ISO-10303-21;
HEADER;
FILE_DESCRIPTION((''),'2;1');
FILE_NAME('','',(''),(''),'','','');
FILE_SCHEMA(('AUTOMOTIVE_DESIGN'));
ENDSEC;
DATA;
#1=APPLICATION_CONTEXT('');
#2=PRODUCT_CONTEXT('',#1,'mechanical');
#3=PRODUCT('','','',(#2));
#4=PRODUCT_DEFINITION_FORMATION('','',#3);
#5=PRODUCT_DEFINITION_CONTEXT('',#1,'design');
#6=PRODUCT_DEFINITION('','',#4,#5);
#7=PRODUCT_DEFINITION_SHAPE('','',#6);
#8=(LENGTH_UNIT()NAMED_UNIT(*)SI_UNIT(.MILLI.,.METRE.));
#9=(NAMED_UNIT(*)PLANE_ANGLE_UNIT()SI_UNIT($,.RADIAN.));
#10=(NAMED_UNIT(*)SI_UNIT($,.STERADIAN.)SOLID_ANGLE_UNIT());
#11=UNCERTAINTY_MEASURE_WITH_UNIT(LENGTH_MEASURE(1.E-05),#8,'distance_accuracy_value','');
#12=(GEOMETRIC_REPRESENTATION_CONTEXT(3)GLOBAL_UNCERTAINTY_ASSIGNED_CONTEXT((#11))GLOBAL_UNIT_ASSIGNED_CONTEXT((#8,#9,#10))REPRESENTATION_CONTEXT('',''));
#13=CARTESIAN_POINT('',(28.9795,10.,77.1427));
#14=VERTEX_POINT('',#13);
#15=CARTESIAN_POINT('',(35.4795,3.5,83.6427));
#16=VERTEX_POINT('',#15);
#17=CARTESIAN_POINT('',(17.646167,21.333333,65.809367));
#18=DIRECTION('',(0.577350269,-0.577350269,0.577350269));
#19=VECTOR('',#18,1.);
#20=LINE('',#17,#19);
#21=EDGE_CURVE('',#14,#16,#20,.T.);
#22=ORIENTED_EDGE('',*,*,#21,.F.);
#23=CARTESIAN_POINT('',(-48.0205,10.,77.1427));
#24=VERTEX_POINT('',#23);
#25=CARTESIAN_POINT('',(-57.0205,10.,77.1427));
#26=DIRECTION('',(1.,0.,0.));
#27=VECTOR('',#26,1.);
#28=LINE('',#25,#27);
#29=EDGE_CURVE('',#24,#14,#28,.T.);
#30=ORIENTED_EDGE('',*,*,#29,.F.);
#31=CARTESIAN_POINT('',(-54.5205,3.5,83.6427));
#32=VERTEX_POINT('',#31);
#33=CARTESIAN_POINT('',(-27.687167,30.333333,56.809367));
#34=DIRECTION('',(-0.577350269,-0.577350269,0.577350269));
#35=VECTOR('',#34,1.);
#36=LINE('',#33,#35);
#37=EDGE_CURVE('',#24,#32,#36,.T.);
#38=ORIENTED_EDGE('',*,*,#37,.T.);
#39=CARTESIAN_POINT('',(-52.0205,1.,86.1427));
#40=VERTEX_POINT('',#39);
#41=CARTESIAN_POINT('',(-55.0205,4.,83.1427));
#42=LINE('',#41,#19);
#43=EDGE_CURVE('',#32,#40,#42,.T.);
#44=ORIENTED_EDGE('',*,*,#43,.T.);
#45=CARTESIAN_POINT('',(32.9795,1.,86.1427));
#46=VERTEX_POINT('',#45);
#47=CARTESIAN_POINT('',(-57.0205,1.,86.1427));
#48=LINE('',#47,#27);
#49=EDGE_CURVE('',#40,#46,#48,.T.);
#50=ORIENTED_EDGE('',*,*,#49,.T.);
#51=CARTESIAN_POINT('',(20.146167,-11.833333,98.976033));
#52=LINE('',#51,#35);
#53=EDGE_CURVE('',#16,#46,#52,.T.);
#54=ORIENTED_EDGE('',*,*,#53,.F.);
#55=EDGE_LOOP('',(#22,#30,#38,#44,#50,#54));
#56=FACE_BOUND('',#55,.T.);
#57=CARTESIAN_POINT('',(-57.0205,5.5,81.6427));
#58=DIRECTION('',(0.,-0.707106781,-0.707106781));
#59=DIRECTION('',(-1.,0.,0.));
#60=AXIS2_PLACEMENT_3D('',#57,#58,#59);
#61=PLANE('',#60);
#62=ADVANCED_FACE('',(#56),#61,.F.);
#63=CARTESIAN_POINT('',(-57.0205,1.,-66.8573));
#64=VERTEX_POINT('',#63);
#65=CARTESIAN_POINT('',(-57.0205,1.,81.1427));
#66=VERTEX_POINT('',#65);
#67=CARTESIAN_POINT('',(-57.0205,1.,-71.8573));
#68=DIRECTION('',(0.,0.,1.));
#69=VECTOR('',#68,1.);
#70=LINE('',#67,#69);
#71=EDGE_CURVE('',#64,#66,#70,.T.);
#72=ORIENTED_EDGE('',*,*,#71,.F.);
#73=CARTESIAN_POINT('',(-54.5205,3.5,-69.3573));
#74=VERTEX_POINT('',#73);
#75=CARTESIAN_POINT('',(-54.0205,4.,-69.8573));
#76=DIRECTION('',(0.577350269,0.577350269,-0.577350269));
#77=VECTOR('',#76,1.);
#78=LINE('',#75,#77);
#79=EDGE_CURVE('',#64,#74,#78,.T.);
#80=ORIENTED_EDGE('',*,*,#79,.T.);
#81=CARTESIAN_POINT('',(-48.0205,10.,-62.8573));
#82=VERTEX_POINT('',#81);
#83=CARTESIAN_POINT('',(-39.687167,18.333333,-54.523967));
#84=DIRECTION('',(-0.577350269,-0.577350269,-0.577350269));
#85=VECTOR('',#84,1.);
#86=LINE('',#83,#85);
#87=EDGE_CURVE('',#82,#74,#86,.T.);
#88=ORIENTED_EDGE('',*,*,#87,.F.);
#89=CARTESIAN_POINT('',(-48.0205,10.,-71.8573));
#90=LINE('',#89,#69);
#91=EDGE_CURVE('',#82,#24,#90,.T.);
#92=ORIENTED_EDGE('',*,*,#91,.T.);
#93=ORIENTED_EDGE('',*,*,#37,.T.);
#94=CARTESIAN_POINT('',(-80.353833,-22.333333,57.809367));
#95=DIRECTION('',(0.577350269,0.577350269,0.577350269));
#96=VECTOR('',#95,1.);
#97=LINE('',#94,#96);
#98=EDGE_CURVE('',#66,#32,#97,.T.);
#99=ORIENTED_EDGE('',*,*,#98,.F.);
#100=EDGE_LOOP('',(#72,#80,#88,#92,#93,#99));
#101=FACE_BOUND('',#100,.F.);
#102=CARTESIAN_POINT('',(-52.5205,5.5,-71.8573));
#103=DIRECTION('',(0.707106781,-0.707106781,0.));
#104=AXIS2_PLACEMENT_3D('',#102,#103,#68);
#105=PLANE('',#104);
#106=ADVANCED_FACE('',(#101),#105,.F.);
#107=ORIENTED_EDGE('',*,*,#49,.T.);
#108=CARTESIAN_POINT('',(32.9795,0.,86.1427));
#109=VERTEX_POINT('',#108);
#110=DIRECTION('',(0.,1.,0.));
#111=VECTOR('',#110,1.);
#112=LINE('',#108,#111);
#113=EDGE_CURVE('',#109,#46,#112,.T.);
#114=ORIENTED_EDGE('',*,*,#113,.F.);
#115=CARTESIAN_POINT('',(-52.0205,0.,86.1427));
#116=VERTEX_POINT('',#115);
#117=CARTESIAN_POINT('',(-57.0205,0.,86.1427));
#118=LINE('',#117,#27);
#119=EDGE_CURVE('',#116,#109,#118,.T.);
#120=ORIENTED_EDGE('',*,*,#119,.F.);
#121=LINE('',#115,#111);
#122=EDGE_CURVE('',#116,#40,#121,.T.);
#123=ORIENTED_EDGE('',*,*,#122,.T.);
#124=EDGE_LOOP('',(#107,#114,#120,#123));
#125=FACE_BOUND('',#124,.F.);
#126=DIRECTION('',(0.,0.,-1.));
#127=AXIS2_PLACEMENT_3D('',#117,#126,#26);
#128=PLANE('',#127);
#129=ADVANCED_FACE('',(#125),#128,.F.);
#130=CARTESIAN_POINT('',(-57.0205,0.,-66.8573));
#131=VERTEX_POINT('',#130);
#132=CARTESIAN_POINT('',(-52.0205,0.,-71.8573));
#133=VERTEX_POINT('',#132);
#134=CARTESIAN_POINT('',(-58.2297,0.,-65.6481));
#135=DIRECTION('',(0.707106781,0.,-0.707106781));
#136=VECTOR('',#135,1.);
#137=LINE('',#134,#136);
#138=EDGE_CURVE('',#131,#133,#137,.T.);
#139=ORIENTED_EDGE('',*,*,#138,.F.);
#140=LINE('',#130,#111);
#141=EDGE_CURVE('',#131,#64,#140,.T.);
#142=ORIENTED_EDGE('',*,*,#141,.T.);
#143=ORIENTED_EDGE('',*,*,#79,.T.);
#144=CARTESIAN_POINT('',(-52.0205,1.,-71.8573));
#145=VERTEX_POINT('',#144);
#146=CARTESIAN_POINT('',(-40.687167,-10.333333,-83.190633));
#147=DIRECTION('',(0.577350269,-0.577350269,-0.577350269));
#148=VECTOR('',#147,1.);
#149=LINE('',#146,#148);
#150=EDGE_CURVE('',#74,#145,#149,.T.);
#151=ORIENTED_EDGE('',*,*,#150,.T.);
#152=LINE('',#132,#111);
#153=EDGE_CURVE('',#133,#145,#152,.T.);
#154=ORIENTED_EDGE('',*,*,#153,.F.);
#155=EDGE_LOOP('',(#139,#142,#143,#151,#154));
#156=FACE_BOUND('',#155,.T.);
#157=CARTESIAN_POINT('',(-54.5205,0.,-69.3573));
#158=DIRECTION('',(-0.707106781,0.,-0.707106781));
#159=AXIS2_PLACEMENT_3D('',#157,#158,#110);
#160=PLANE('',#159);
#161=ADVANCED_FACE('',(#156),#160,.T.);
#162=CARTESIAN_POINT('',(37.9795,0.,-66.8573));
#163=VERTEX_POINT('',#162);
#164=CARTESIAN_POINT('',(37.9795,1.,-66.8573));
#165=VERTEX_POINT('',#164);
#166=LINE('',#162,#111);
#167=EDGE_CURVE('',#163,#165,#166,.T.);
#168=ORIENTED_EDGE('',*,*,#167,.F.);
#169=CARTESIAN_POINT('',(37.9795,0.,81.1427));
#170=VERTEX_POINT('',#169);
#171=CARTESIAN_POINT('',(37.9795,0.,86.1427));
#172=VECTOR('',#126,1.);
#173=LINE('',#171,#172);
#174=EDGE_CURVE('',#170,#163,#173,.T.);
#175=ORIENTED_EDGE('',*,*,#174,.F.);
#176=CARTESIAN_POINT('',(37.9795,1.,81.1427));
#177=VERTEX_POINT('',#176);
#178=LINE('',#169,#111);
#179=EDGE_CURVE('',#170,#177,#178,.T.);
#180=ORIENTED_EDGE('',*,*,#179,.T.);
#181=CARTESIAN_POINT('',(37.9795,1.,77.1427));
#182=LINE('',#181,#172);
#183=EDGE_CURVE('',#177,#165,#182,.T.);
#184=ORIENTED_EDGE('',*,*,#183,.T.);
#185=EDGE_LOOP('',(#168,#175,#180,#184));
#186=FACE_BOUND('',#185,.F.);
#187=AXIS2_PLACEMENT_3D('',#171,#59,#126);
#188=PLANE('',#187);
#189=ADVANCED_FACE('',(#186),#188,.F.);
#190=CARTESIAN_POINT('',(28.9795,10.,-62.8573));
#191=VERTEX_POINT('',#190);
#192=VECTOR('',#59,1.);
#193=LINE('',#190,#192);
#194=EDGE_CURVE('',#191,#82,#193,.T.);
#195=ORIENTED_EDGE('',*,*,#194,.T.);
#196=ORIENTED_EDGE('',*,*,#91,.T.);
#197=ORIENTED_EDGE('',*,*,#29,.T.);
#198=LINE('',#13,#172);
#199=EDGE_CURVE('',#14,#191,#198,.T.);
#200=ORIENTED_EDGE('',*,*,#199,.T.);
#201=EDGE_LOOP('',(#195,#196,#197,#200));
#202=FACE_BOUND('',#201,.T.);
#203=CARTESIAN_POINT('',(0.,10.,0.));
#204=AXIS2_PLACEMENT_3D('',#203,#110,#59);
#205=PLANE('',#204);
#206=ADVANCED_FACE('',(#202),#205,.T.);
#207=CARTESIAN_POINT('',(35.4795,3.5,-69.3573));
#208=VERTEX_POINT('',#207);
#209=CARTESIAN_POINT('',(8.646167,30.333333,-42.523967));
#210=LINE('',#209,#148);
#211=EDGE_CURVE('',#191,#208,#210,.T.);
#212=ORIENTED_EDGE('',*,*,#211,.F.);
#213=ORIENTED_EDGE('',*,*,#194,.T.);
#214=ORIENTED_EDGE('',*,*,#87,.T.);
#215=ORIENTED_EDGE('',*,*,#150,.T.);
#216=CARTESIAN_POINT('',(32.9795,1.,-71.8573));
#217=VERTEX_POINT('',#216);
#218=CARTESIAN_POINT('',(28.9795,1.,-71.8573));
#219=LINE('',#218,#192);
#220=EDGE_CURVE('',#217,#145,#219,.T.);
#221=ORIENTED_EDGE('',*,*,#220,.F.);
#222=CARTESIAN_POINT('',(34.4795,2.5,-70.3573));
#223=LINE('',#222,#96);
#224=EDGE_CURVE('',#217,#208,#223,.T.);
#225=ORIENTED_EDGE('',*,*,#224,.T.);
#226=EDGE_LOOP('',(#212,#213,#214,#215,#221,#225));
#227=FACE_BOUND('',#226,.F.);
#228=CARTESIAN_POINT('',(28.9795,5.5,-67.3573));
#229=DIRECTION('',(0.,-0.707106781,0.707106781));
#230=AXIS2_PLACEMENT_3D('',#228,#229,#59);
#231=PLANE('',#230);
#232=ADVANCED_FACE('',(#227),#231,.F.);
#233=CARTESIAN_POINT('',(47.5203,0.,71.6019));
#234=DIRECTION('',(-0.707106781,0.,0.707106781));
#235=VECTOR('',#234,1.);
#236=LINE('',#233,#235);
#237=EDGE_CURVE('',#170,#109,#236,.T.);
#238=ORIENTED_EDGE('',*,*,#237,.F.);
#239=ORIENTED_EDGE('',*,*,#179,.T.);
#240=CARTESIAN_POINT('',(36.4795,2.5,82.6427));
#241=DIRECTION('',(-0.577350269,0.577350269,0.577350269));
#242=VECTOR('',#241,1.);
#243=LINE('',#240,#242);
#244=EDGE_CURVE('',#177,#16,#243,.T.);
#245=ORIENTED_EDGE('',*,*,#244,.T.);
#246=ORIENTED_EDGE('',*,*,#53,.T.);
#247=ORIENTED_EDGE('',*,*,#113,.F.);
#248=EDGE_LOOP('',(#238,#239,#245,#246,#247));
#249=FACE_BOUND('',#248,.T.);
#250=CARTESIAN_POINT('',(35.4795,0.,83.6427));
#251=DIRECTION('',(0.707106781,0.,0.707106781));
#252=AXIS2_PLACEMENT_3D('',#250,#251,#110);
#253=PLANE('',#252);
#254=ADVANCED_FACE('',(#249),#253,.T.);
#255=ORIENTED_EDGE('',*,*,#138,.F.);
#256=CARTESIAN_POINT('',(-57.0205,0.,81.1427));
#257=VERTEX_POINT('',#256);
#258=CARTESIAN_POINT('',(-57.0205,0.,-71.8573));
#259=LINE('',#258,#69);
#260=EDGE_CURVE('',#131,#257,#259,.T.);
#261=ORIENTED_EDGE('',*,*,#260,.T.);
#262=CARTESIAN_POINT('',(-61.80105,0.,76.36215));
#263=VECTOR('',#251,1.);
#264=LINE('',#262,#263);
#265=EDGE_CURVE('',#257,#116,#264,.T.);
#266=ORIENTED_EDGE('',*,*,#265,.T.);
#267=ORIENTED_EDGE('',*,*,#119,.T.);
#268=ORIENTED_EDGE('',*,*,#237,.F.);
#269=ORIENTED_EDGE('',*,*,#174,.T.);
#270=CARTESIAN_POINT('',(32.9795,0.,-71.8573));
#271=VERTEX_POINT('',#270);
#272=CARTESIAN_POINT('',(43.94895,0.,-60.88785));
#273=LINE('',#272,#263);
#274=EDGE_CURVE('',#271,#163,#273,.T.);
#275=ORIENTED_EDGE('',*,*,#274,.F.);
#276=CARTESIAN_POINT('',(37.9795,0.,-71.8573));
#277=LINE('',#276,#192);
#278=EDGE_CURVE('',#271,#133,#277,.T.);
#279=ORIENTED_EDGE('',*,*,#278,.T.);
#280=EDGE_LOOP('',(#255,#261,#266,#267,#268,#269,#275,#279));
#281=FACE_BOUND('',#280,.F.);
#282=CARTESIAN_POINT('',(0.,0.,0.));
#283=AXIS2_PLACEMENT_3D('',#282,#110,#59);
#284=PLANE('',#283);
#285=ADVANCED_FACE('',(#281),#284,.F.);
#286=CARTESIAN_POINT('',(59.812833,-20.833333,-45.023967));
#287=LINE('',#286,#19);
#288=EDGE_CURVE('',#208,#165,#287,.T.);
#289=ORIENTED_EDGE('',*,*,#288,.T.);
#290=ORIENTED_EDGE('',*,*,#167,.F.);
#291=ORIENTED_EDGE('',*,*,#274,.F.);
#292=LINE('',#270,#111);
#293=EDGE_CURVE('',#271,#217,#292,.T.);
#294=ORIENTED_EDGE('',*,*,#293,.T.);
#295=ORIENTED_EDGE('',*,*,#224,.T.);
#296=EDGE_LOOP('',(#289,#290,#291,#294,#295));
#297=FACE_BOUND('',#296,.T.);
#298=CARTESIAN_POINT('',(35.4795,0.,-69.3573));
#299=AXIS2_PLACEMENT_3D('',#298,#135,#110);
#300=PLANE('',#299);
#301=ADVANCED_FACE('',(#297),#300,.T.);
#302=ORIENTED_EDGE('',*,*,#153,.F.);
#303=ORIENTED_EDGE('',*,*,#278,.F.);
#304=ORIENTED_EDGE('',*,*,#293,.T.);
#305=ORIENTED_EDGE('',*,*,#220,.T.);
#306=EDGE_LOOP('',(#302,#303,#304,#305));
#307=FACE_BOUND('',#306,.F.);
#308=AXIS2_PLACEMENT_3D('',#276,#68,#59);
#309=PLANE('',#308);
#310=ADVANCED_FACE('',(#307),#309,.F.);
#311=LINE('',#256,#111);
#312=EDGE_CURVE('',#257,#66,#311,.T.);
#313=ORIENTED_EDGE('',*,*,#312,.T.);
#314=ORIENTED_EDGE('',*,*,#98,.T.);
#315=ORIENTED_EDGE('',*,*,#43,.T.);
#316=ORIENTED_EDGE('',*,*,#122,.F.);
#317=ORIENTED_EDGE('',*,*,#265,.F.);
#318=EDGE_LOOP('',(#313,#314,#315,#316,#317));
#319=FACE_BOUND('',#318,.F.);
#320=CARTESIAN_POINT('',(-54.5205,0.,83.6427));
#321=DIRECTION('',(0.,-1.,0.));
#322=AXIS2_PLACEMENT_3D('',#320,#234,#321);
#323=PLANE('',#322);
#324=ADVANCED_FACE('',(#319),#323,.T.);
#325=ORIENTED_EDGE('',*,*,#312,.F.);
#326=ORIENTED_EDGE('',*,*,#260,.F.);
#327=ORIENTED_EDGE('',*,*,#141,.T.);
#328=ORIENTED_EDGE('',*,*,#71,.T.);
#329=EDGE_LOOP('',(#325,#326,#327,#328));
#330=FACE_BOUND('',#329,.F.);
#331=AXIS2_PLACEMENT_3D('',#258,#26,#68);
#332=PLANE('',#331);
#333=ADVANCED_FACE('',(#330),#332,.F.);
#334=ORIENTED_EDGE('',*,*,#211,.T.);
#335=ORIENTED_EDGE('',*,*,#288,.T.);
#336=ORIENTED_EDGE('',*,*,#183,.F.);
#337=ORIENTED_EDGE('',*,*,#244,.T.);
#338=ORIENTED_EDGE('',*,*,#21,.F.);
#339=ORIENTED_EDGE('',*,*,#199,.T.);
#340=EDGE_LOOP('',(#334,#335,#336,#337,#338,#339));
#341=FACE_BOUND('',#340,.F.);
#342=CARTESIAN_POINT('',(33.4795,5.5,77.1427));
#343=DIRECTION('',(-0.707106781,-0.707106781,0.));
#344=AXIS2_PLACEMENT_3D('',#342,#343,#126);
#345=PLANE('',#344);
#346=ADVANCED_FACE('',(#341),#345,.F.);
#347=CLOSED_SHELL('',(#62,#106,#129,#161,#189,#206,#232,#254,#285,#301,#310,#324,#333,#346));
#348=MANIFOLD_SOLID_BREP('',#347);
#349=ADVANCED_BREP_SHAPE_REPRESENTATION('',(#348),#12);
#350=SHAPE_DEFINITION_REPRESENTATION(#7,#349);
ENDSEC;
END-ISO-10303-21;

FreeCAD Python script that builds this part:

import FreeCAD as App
import Part
import Sketcher
Q = App.Units.Quantity


def edges_at(feature, points):
    """Names of the edges that pass closest to the given points."""
    edges = feature.Shape.Edges
    near = lambda p: min(range(len(edges)), key=lambda i: edges[i].distToShape(Part.Vertex(*p))[0])
    return sorted({f"Edge{near(p) + 1}" for p in points})

doc = App.newDocument("Part")
body = doc.addObject("PartDesign::Body", "Body")

sketch1 = body.newObject("Sketcher::SketchObject", "Sketch")
sketch1.AttachmentSupport = (doc.getObject("XZ_Plane"), [""])
sketch1.MapMode = "FlatFace"
sketch1.addGeometry([
    Part.LineSegment(App.Vector(-57, -72, 0), App.Vector(-57, 86, 0)),
    Part.LineSegment(App.Vector(-57, 86, 0), App.Vector(38, 86, 0)),
    Part.LineSegment(App.Vector(38, 86, 0), App.Vector(38, -72, 0)),
    Part.LineSegment(App.Vector(38, -72, 0), App.Vector(-57, -72, 0)),
], False)
sketch1.addConstraint([
    Sketcher.Constraint("Coincident", 0, 2, 1, 1),
    Sketcher.Constraint("Coincident", 1, 2, 2, 1),
    Sketcher.Constraint("Coincident", 2, 2, 3, 1),
    Sketcher.Constraint("Coincident", 3, 2, 0, 1),
    Sketcher.Constraint("Vertical", 0),
    Sketcher.Constraint("Horizontal", 1),
    Sketcher.Constraint("Vertical", 2),
    Sketcher.Constraint("Horizontal", 3),
    Sketcher.Constraint("DistanceX", 1, 1, 1, 2, Q("95 mm")),
    Sketcher.Constraint("DistanceY", 0, 1, 0, 2, Q("158 mm")),
    Sketcher.Constraint("DistanceX", 0, 2, -1, 1, Q("57.0205 mm")),
    Sketcher.Constraint("DistanceY", -1, 1, 0, 2, Q("86.1427 mm")),
])
pad1 = body.newObject("PartDesign::Pad", "Pad")
pad1.Profile = sketch1
pad1.Length = 10
pad1.Reversed = True
doc.recompute()

chamfer = body.newObject("PartDesign::Chamfer", "Chamfer")
chamfer.Base = (pad1, edges_at(pad1, [(-9.521, 10, 86.143)]))
chamfer.Size = 9
doc.recompute()

chamfer2 = body.newObject("PartDesign::Chamfer", "Chamfer001")
chamfer2.Base = (chamfer, edges_at(chamfer, [(37.98, 10, 2.643)]))
chamfer2.Size = 9
doc.recompute()

chamfer3 = body.newObject("PartDesign::Chamfer", "Chamfer002")
chamfer3.Base = (chamfer2, edges_at(chamfer2, [(-57.02, 10, 2.643)]))
chamfer3.Size = 9
doc.recompute()

chamfer4 = body.newObject("PartDesign::Chamfer", "Chamfer003")
chamfer4.Base = (chamfer3, edges_at(chamfer3, [(-9.521, 10, -71.857)]))
chamfer4.Size = 9
doc.recompute()

chamfer5 = body.newObject("PartDesign::Chamfer", "Chamfer004")
chamfer5.Base = (chamfer4, edges_at(chamfer4, [(-57.02, 0.5, -71.857)]))
chamfer5.Size = 5
doc.recompute()

chamfer6 = body.newObject("PartDesign::Chamfer", "Chamfer005")
chamfer6.Base = (chamfer5, edges_at(chamfer5, [(-57.02, 0.5, 86.143)]))
chamfer6.Size = 5
doc.recompute()

chamfer7 = body.newObject("PartDesign::Chamfer", "Chamfer006")
chamfer7.Base = (chamfer6, edges_at(chamfer6, [(37.98, 0.5, -71.857)]))
chamfer7.Size = 5
doc.recompute()

chamfer8 = body.newObject("PartDesign::Chamfer", "Chamfer007")
chamfer8.Base = (chamfer7, edges_at(chamfer7, [(37.98, 0.5, 86.143)]))
chamfer8.Size = 5

doc.recompute()
